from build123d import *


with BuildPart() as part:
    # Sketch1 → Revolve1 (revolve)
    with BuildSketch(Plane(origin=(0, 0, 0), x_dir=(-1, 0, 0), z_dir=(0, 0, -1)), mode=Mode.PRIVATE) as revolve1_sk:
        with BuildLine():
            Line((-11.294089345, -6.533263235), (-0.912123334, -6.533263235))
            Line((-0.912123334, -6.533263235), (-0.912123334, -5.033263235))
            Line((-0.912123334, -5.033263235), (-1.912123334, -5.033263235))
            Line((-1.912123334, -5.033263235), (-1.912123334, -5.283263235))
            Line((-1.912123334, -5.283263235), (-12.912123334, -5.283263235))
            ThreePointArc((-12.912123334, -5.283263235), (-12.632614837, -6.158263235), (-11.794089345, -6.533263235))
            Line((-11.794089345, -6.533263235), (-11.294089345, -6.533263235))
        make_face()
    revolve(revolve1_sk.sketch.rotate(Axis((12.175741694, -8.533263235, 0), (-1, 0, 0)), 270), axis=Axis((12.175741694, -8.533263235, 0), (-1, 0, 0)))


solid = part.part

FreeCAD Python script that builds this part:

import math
import FreeCAD as App
import Part
import Sketcher

doc = App.newDocument("Part")
body = doc.addObject("PartDesign::Body", "Body")

# Sketch on XY plane
sketch1 = doc.addObject("Sketcher::SketchObject", "Sketch")
body.addObject(sketch1)
sketch1.AttachmentSupport = (doc.XY_Plane, [""])
sketch1.MapMode = "FlatFace"
sketch1.addGeometry([
    Part.LineSegment(App.Vector(0.91, -6.53, 0), App.Vector(0.91, -5.03, 0)),  # 0
    Part.LineSegment(App.Vector(0.91, -5.03, 0), App.Vector(1.91, -5.03, 0)),  # 1
    Part.LineSegment(App.Vector(1.91, -5.03, 0), App.Vector(1.91, -5.28, 0)),  # 2
    Part.LineSegment(App.Vector(1.91, -5.28, 0), App.Vector(12.91, -5.28, 0)),  # 3
    Part.ArcOfCircle(Part.Circle(App.Vector(11.79, -5.41, 0), App.Vector(0, 0, 1), 1.12), math.radians(-90), math.radians(6)),  # 4
    Part.LineSegment(App.Vector(11.79, -6.53, 0), App.Vector(0.91, -6.53, 0)),  # 5
], False)
sketch1.addGeometry(Part.LineSegment(App.Vector(12.91, -8.53, 0), App.Vector(0.91, -8.53, 0)), True)  # axis
sketch1.addConstraint([
    Sketcher.Constraint("Coincident", 0, 2, 1, 1),
    Sketcher.Constraint("Coincident", 1, 2, 2, 1),
    Sketcher.Constraint("Coincident", 2, 2, 3, 1),
    Sketcher.Constraint("Coincident", 3, 2, 4, 2),
    Sketcher.Constraint("Tangent", 4, 1, 5, 1),
    Sketcher.Constraint("Coincident", 5, 2, 0, 1),
    Sketcher.Constraint("Vertical", 0),
    Sketcher.Constraint("Horizontal", 1),
    Sketcher.Constraint("Vertical", 2),
    Sketcher.Constraint("Horizontal", 3),
    Sketcher.Constraint("Horizontal", 5),
    Sketcher.Constraint("Horizontal", 6),
    Sketcher.Constraint("Vertical", 3, 2, 6, 1),
    Sketcher.Constraint("Vertical", 5, 2, 6, 2),
    Sketcher.Constraint("DistanceX", 1, 1, 1, 2, 1.0),
    Sketcher.Constraint("DistanceX", 3, 1, 3, 2, 11.0),
    Sketcher.Constraint("DistanceY", 0, 1, 0, 2, 1.5),
    Sketcher.Constraint("Radius", 4, 1.125),
    Sketcher.Constraint("DistanceY", 6, 1, 4, 1, 2.0),
    Sketcher.Constraint("DistanceY", 2, 2, 2, 1, 0.25),
    Sketcher.Constraint("DistanceX", -1, 1, 4, 3, 11.794089),
    Sketcher.Constraint("DistanceY", 4, 3, -1, 1, 5.408263),
])
revolution = doc.addObject("PartDesign::Revolution", "Revolution")
body.addObject(revolution)
revolution.Profile = sketch1
revolution.ReferenceAxis = (sketch1, ["Axis0"])
revolution.Angle = 360

doc.recompute()
